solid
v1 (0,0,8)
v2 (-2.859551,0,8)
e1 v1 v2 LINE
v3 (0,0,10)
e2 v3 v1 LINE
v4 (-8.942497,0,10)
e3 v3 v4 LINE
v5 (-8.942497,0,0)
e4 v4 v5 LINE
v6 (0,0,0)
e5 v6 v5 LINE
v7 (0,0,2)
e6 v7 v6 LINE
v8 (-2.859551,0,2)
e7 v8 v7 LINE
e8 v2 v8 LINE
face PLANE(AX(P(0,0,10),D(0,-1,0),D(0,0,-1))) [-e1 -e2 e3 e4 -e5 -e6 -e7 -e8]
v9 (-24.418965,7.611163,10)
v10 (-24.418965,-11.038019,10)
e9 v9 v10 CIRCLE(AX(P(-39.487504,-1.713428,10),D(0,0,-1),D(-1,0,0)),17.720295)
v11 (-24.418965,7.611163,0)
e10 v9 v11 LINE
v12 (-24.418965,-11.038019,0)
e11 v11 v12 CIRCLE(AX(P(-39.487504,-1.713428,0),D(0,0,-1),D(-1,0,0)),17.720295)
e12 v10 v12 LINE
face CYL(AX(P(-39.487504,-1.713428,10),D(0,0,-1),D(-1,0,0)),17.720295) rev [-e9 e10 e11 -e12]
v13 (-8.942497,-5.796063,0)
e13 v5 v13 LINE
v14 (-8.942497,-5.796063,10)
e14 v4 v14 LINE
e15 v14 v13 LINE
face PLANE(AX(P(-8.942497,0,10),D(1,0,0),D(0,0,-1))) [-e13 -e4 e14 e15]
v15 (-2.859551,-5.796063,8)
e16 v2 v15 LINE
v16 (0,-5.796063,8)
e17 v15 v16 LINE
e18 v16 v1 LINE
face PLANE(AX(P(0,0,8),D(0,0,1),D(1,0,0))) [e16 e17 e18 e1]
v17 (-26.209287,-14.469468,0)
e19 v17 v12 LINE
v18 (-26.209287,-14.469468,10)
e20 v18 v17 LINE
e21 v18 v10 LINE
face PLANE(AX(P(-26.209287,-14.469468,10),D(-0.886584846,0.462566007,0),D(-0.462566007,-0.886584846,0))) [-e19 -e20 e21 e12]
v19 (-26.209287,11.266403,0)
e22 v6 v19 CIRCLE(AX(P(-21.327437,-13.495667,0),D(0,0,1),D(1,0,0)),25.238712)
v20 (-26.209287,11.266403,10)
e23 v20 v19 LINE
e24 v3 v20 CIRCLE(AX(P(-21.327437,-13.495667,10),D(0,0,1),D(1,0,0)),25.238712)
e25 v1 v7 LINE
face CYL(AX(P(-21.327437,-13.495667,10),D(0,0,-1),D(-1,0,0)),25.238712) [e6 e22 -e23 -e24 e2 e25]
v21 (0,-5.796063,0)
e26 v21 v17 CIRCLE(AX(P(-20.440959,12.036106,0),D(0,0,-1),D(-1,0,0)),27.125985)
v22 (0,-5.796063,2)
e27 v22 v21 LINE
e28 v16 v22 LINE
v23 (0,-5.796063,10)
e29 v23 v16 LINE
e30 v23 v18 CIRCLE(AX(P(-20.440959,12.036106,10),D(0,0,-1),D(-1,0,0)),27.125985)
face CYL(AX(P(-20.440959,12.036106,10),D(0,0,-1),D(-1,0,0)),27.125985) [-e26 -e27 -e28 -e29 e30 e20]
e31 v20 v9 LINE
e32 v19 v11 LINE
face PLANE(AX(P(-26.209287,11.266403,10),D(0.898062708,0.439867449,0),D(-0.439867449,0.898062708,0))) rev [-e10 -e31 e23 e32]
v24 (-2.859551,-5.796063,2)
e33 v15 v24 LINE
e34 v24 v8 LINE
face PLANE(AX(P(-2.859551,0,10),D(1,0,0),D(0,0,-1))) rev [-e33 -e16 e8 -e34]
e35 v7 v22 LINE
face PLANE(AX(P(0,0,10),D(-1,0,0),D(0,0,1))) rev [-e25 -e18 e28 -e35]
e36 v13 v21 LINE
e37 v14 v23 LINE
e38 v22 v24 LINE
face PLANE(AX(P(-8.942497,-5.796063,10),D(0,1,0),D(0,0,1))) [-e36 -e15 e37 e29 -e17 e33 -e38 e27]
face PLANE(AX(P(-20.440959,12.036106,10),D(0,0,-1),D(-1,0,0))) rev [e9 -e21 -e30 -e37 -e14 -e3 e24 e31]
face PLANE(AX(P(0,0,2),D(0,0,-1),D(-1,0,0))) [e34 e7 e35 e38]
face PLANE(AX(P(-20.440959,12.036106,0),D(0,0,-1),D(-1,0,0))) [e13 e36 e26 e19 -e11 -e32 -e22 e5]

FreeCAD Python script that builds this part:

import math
import FreeCAD as App
import Part
import Sketcher


def add_polygon(sketch, points):
    """Adds a closed chain of lines whose ends are joined by coincident constraints."""
    first, n = sketch.GeometryCount, len(points)
    for a, b in zip(points, points[1:] + points[:1]):
        sketch.addGeometry(Part.LineSegment(App.Vector(*a, 0), App.Vector(*b, 0)), False)
    for i in range(n):
        sketch.addConstraint(Sketcher.Constraint("Coincident", first + i, 2, first + (i + 1) % n, 1))

doc = App.newDocument("Part")
body = doc.addObject("PartDesign::Body", "Body")

# Sketch on XY plane
sketch1 = body.newObject("Sketcher::SketchObject", "Sketch")
sketch1.AttachmentSupport = (doc.getObject("XY_Plane"), [""])
sketch1.MapMode = "FlatFace"
sketch1.addGeometry([
    Part.LineSegment(App.Vector(-8.9, 0, 0), App.Vector(0, 0, 0)),  # 0
    Part.ArcOfCircle(Part.Circle(App.Vector(-21.3, -13.5, 0), App.Vector(0, 0, 1), 25.2), math.radians(32), math.radians(101)),  # 1
    Part.LineSegment(App.Vector(-26.2, 11.3, 0), App.Vector(-24.4, 7.6, 0)),  # 2
    Part.ArcOfCircle(Part.Circle(App.Vector(-39.5, -1.7, 0), App.Vector(0, 0, 1), 17.7), math.radians(-32), math.radians(32)),  # 3
    Part.LineSegment(App.Vector(-24.4, -11, 0), App.Vector(-26.2, -14.5, 0)),  # 4
    Part.ArcOfCircle(Part.Circle(App.Vector(-20.4, 12, 0), App.Vector(0, 0, 1), 27.1), math.radians(-102), math.radians(-41)),  # 5
    Part.LineSegment(App.Vector(0, -5.8, 0), App.Vector(-8.9, -5.8, 0)),  # 6
    Part.LineSegment(App.Vector(-8.9, -5.8, 0), App.Vector(-8.9, 0, 0)),  # 7
], False)
sketch1.addConstraint([
    Sketcher.Constraint("Coincident", 0, 2, 1, 1),
    Sketcher.Constraint("Coincident", 1, 2, 2, 1),
    Sketcher.Constraint("Coincident", 2, 2, 3, 2),
    Sketcher.Constraint("Coincident", 3, 1, 4, 1),
    Sketcher.Constraint("Coincident", 4, 2, 5, 1),
    Sketcher.Constraint("Coincident", 5, 2, 6, 1),
    Sketcher.Constraint("Coincident", 6, 2, 7, 1),
    Sketcher.Constraint("Coincident", 7, 2, 0, 1),
    Sketcher.Constraint("Horizontal", 0),
    Sketcher.Constraint("Horizontal", 6),
    Sketcher.Constraint("Vertical", 7),
    Sketcher.Constraint("Coincident", 0, 2, -1, 1),
    Sketcher.Constraint("PointOnObject", 5, 2, -2),
    Sketcher.Constraint("Vertical", 2, 2, 3, 1),
    Sketcher.Constraint("Vertical", 1, 2, 4, 2),
    Sketcher.Constraint("Radius", 1, 25.238712),
    Sketcher.Constraint("Radius", 3, 17.720295),
    Sketcher.Constraint("Radius", 5, 27.125985),
    Sketcher.Constraint("DistanceY", 4, 2, 1, 3, 0.973801),
    Sketcher.Constraint("Distance", 2, 4.070139),
    Sketcher.Constraint("DistanceX", 0, 1, 0, 2, 8.942497),
    Sketcher.Constraint("DistanceY", 7, 1, 7, 2, 5.796063),
    Sketcher.Constraint("DistanceX", 5, 3, -1, 1, 20.440959),
    Sketcher.Constraint("DistanceY", 3, 1, -1, 1, 11.038019),
    Sketcher.Constraint("DistanceY", 4, 2, -1, 1, 14.469468),
    Sketcher.Constraint("DistanceY", 1, 3, 3, 3, 11.78224),
])
pad1 = body.newObject("PartDesign::Pad", "Pad")
pad1.Profile = sketch1
pad1.Length = 10

# Sketch on XY plane
sketch2 = body.newObject("Sketcher::SketchObject", "Sketch001")
sketch2.AttachmentSupport = (doc.getObject("XY_Plane"), [""])
sketch2.MapMode = "FlatFace"
add_polygon(sketch2, [(-2.9, 0), (-2.9, -5.8), (0, -5.8), (0, 0)])  # lines 0-3
sketch2.addConstraint([
    Sketcher.Constraint("Vertical", 0),
    Sketcher.Constraint("Horizontal", 1),
    Sketcher.Constraint("Vertical", 2),
    Sketcher.Constraint("Horizontal", 3),
    Sketcher.Constraint("Coincident", 2, 2, -1, 1),
    Sketcher.Constraint("DistanceX", 1, 1, 1, 2, 2.859551),
    Sketcher.Constraint("DistanceY", 0, 2, 0, 1, 5.796063),
])
pad2 = body.newObject("PartDesign::Pad", "Pad001")
pad2.Profile = sketch2
pad2.Length = 10

# Sketch on XY plane
sketch3 = body.newObject("Sketcher::SketchObject", "Sketch002")
sketch3.AttachmentSupport = (doc.getObject("XY_Plane"), [""])
sketch3.MapMode = "FlatFace"
sketch3.AttachmentOffset = App.Placement(App.Vector(0, 0, 10), App.Rotation())
add_polygon(sketch3, [(-2.9, 0), (-2.9, -5.8), (0, -5.8), (0, 0)])  # lines 0-3
sketch3.addConstraint([
    Sketcher.Constraint("Vertical", 0),
    Sketcher.Constraint("Horizontal", 1),
    Sketcher.Constraint("Vertical", 2),
    Sketcher.Constraint("Horizontal", 3),
    Sketcher.Constraint("Coincident", 2, 2, -1, 1),
    Sketcher.Constraint("DistanceX", 1, 1, 1, 2, 2.859551),
    Sketcher.Constraint("DistanceY", 0, 2, 0, 1, 5.796063),
])
pocket1 = body.newObject("PartDesign::Pocket", "Pocket")
pocket1.Profile = sketch3
pocket1.Length = 2

# Sketch on XY plane
sketch4 = body.newObject("Sketcher::SketchObject", "Sketch003")
sketch4.AttachmentSupport = (doc.getObject("XY_Plane"), [""])
sketch4.MapMode = "FlatFace"
add_polygon(sketch4, [(0, 0), (0, -5.8), (-2.9, -5.8), (-2.9, 0)])  # lines 0-3
sketch4.addConstraint([
    Sketcher.Constraint("Vertical", 0),
    Sketcher.Constraint("Horizontal", 1),
    Sketcher.Constraint("Vertical", 2),
    Sketcher.Constraint("Horizontal", 3),
    Sketcher.Constraint("Coincident", 3, 2, -1, 1),
    Sketcher.Constraint("DistanceX", 1, 2, 1, 1, 2.859551),
    Sketcher.Constraint("DistanceY", 0, 2, 0, 1, 5.796063),
])
pocket2 = body.newObject("PartDesign::Pocket", "Pocket001")
pocket2.Profile = sketch4
pocket2.Length = 2
pocket2.Reversed = True

doc.recompute()
